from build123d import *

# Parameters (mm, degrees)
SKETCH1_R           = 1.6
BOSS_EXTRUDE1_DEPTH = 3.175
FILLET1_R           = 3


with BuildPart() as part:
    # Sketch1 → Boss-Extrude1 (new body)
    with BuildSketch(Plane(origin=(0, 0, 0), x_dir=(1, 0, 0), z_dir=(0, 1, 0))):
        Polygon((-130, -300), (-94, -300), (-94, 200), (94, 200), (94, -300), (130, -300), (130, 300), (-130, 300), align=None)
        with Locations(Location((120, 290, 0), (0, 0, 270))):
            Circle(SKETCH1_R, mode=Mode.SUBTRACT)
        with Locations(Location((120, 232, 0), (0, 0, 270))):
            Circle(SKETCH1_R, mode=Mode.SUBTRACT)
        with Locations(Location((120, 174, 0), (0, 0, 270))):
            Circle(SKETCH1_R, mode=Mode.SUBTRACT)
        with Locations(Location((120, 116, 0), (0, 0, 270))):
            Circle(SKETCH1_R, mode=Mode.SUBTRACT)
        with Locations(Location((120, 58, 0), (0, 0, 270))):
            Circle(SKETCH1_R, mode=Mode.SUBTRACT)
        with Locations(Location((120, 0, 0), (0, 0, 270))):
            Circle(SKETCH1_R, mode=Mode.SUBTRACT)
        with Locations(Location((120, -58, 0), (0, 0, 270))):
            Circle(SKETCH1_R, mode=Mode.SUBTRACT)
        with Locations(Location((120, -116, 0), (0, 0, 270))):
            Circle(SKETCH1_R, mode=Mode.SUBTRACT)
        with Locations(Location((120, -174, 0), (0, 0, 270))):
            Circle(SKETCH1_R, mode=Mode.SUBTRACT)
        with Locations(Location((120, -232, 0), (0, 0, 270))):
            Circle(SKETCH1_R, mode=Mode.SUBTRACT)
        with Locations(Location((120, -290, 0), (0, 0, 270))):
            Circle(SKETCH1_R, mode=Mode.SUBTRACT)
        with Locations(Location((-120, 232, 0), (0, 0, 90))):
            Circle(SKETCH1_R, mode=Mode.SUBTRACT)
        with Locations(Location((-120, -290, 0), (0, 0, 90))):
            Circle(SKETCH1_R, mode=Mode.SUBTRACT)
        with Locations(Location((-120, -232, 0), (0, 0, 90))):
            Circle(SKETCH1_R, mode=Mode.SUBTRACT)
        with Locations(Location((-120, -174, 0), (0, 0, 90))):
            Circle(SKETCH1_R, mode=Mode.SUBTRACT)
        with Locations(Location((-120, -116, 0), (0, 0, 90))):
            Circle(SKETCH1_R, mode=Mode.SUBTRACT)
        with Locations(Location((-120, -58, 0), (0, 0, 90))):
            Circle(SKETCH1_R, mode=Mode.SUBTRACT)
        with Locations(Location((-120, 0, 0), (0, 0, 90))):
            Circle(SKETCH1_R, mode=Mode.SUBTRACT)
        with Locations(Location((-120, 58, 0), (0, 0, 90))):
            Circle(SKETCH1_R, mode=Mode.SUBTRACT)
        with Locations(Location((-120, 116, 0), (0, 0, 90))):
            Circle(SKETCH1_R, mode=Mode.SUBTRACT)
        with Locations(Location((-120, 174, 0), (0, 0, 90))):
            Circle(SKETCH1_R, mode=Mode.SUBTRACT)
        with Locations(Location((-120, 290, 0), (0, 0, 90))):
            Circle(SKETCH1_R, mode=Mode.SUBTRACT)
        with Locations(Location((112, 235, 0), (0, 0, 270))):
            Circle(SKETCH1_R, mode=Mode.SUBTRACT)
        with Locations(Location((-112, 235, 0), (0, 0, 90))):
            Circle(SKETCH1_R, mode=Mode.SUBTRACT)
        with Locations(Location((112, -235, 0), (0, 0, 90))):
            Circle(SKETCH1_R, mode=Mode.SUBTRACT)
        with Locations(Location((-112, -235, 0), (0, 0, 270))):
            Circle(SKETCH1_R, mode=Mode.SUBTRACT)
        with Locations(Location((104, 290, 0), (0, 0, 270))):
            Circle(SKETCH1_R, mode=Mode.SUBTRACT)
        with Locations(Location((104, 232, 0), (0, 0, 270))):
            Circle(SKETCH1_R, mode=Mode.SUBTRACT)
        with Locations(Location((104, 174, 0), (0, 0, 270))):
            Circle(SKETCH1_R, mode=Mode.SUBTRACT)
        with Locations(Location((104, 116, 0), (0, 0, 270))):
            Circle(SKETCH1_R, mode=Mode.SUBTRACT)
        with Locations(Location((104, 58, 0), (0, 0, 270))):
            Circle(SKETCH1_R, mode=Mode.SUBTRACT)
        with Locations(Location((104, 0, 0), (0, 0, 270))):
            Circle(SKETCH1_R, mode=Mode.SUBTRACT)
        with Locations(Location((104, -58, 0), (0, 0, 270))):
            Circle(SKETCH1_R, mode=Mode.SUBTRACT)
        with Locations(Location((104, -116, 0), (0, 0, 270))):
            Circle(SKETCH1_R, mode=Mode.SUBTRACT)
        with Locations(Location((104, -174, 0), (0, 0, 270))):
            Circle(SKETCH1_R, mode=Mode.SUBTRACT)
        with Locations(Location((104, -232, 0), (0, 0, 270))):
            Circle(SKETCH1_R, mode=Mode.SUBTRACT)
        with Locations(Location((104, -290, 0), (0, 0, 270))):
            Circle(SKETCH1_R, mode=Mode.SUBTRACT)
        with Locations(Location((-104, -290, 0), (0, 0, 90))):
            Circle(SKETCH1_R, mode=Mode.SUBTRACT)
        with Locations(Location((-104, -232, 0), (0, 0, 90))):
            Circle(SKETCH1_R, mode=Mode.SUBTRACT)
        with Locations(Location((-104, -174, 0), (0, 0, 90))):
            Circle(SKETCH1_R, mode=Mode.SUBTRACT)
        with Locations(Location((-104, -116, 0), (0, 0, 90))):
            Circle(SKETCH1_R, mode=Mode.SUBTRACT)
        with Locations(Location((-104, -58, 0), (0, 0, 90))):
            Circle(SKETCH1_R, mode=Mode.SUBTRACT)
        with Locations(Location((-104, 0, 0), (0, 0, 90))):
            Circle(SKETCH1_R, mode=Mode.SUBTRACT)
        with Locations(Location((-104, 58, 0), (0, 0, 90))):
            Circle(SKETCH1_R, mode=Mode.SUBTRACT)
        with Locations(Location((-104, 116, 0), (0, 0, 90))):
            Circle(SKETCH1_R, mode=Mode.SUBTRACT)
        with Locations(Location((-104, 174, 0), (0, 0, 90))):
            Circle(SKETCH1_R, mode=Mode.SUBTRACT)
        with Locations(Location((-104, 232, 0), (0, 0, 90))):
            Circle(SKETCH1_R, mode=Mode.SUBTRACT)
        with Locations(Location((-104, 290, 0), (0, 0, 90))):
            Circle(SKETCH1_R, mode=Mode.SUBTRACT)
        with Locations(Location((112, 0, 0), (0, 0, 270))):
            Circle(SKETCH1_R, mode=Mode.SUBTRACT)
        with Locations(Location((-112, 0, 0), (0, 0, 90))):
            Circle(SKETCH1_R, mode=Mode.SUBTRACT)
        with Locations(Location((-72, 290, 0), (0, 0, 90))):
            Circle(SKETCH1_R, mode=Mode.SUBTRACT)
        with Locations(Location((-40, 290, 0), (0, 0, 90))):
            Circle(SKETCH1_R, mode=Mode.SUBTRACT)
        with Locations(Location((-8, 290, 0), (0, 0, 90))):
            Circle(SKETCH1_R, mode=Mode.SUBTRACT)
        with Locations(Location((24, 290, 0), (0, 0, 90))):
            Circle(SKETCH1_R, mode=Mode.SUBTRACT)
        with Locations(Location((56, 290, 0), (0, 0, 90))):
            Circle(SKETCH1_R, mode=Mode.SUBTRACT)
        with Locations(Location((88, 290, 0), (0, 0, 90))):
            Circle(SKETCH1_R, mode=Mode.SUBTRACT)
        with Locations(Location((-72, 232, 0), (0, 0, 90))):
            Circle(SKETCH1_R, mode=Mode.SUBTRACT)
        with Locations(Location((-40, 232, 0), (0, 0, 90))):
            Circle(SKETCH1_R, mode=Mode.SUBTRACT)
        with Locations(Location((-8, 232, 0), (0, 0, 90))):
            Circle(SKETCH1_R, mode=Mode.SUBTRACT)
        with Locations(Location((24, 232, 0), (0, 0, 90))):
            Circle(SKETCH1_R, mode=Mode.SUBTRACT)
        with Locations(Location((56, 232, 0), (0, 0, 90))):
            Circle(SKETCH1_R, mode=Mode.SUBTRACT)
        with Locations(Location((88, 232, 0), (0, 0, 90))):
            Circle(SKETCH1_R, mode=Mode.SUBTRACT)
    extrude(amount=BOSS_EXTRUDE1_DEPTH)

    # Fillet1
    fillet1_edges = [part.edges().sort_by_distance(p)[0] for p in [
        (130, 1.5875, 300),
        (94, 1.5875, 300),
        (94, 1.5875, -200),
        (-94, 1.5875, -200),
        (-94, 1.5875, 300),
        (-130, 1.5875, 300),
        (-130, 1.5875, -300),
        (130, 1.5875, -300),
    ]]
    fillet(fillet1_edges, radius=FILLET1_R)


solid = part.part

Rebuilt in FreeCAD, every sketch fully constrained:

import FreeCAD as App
import Part
import Sketcher
from FreeCAD import Vector
Q = App.Units.Quantity


def edges_at(feature, points):
    """Names of the edges that pass closest to the given points."""
    edges = feature.Shape.Edges
    near = lambda p: min(range(len(edges)), key=lambda i: edges[i].distToShape(Part.Vertex(*p))[0])
    return sorted({f"Edge{near(p) + 1}" for p in points})

doc = App.newDocument("Part")
body = doc.addObject("PartDesign::Body", "Body")

sketch1 = body.newObject("Sketcher::SketchObject", "Sketch")
sketch1.AttachmentSupport = (doc.getObject("XZ_Plane"), [""])
sketch1.MapMode = "FlatFace"
sketch1.addGeometry(Part.LineSegment(Vector(-130, 300, 0), Vector(-94, 300, 0)), False)
sketch1.addGeometry(Part.LineSegment(Vector(-94, 300, 0), Vector(-94, -200, 0)), False)
sketch1.addGeometry(Part.LineSegment(Vector(-94, -200, 0), Vector(94, -200, 0)), False)
sketch1.addGeometry(Part.LineSegment(Vector(94, -200, 0), Vector(94, 300, 0)), False)
sketch1.addGeometry(Part.LineSegment(Vector(94, 300, 0), Vector(130, 300, 0)), False)
sketch1.addGeometry(Part.LineSegment(Vector(130, 300, 0), Vector(130, -300, 0)), False)
sketch1.addGeometry(Part.LineSegment(Vector(130, -300, 0), Vector(-130, -300, 0)), False)
sketch1.addGeometry(Part.LineSegment(Vector(-130, -300, 0), Vector(-130, 300, 0)), False)
sketch1.addGeometry(Part.Circle(Vector(-120, 290, 0), Vector(0, 0, 1), 1.6), False)
sketch1.addGeometry(Part.Circle(Vector(-104, 290, 0), Vector(0, 0, 1), 1.6), False)
sketch1.addGeometry(Part.Circle(Vector(-120, 232, 0), Vector(0, 0, 1), 1.6), False)
sketch1.addGeometry(Part.Circle(Vector(-112, 235, 0), Vector(0, 0, 1), 1.6), False)
sketch1.addGeometry(Part.Circle(Vector(-104, 232, 0), Vector(0, 0, 1), 1.6), False)
sketch1.addGeometry(Part.Circle(Vector(-120, 174, 0), Vector(0, 0, 1), 1.6), False)
sketch1.addGeometry(Part.Circle(Vector(-104, 174, 0), Vector(0, 0, 1), 1.6), False)
sketch1.addGeometry(Part.Circle(Vector(-120, 116, 0), Vector(0, 0, 1), 1.6), False)
sketch1.addGeometry(Part.Circle(Vector(-104, 116, 0), Vector(0, 0, 1), 1.6), False)
sketch1.addGeometry(Part.Circle(Vector(-120, 58, 0), Vector(0, 0, 1), 1.6), False)
sketch1.addGeometry(Part.Circle(Vector(-104, 58, 0), Vector(0, 0, 1), 1.6), False)
sketch1.addGeometry(Part.Circle(Vector(104, 290, 0), Vector(0, 0, 1), 1.6), False)
sketch1.addGeometry(Part.Circle(Vector(120, 290, 0), Vector(0, 0, 1), 1.6), False)
sketch1.addGeometry(Part.Circle(Vector(104, 232, 0), Vector(0, 0, 1), 1.6), False)
sketch1.addGeometry(Part.Circle(Vector(112, 235, 0), Vector(0, 0, 1), 1.6), False)
sketch1.addGeometry(Part.Circle(Vector(120, 232, 0), Vector(0, 0, 1), 1.6), False)
sketch1.addGeometry(Part.Circle(Vector(104, 174, 0), Vector(0, 0, 1), 1.6), False)
sketch1.addGeometry(Part.Circle(Vector(120, 174, 0), Vector(0, 0, 1), 1.6), False)
sketch1.addGeometry(Part.Circle(Vector(104, 116, 0), Vector(0, 0, 1), 1.6), False)
sketch1.addGeometry(Part.Circle(Vector(120, 116, 0), Vector(0, 0, 1), 1.6), False)
sketch1.addGeometry(Part.Circle(Vector(104, 58, 0), Vector(0, 0, 1), 1.6), False)
sketch1.addGeometry(Part.Circle(Vector(120, 58, 0), Vector(0, 0, 1), 1.6), False)
sketch1.addGeometry(Part.Circle(Vector(-120, 0, 0), Vector(0, 0, 1), 1.6), False)
sketch1.addGeometry(Part.Circle(Vector(-112, 0, 0), Vector(0, 0, 1), 1.6), False)
sketch1.addGeometry(Part.Circle(Vector(-104, 0, 0), Vector(0, 0, 1), 1.6), False)
sketch1.addGeometry(Part.Circle(Vector(-120, -58, 0), Vector(0, 0, 1), 1.6), False)
sketch1.addGeometry(Part.Circle(Vector(-104, -58, 0), Vector(0, 0, 1), 1.6), False)
sketch1.addGeometry(Part.Circle(Vector(-120, -116, 0), Vector(0, 0, 1), 1.6), False)
sketch1.addGeometry(Part.Circle(Vector(-104, -116, 0), Vector(0, 0, 1), 1.6), False)
sketch1.addGeometry(Part.Circle(Vector(-120, -174, 0), Vector(0, 0, 1), 1.6), False)
sketch1.addGeometry(Part.Circle(Vector(-104, -174, 0), Vector(0, 0, 1), 1.6), False)
sketch1.addGeometry(Part.Circle(Vector(-120, -232, 0), Vector(0, 0, 1), 1.6), False)
sketch1.addGeometry(Part.Circle(Vector(-112, -235, 0), Vector(0, 0, 1), 1.6), False)
sketch1.addGeometry(Part.Circle(Vector(-104, -232, 0), Vector(0, 0, 1), 1.6), False)
sketch1.addGeometry(Part.Circle(Vector(-120, -290, 0), Vector(0, 0, 1), 1.6), False)
sketch1.addGeometry(Part.Circle(Vector(-104, -290, 0), Vector(0, 0, 1), 1.6), False)
sketch1.addGeometry(Part.Circle(Vector(-72, -232, 0), Vector(0, 0, 1), 1.6), False)
sketch1.addGeometry(Part.Circle(Vector(-72, -290, 0), Vector(0, 0, 1), 1.6), False)
sketch1.addGeometry(Part.Circle(Vector(-40, -232, 0), Vector(0, 0, 1), 1.6), False)
sketch1.addGeometry(Part.Circle(Vector(-40, -290, 0), Vector(0, 0, 1), 1.6), False)
sketch1.addGeometry(Part.Circle(Vector(-8, -232, 0), Vector(0, 0, 1), 1.6), False)
sketch1.addGeometry(Part.Circle(Vector(-8, -290, 0), Vector(0, 0, 1), 1.6), False)
sketch1.addGeometry(Part.Circle(Vector(104, 0, 0), Vector(0, 0, 1), 1.6), False)
sketch1.addGeometry(Part.Circle(Vector(112, 0, 0), Vector(0, 0, 1), 1.6), False)
sketch1.addGeometry(Part.Circle(Vector(120, 0, 0), Vector(0, 0, 1), 1.6), False)
sketch1.addGeometry(Part.Circle(Vector(104, -58, 0), Vector(0, 0, 1), 1.6), False)
sketch1.addGeometry(Part.Circle(Vector(120, -58, 0), Vector(0, 0, 1), 1.6), False)
sketch1.addGeometry(Part.Circle(Vector(104, -116, 0), Vector(0, 0, 1), 1.6), False)
sketch1.addGeometry(Part.Circle(Vector(120, -116, 0), Vector(0, 0, 1), 1.6), False)
sketch1.addGeometry(Part.Circle(Vector(24, -232, 0), Vector(0, 0, 1), 1.6), False)
sketch1.addGeometry(Part.Circle(Vector(24, -290, 0), Vector(0, 0, 1), 1.6), False)
sketch1.addGeometry(Part.Circle(Vector(56, -232, 0), Vector(0, 0, 1), 1.6), False)
sketch1.addGeometry(Part.Circle(Vector(56, -290, 0), Vector(0, 0, 1), 1.6), False)
sketch1.addGeometry(Part.Circle(Vector(104, -174, 0), Vector(0, 0, 1), 1.6), False)
sketch1.addGeometry(Part.Circle(Vector(120, -174, 0), Vector(0, 0, 1), 1.6), False)
sketch1.addGeometry(Part.Circle(Vector(88, -232, 0), Vector(0, 0, 1), 1.6), False)
sketch1.addGeometry(Part.Circle(Vector(88, -290, 0), Vector(0, 0, 1), 1.6), False)
sketch1.addGeometry(Part.Circle(Vector(104, -232, 0), Vector(0, 0, 1), 1.6), False)
sketch1.addGeometry(Part.Circle(Vector(112, -235, 0), Vector(0, 0, 1), 1.6), False)
sketch1.addGeometry(Part.Circle(Vector(120, -232, 0), Vector(0, 0, 1), 1.6), False)
sketch1.addGeometry(Part.Circle(Vector(104, -290, 0), Vector(0, 0, 1), 1.6), False)
sketch1.addGeometry(Part.Circle(Vector(120, -290, 0), Vector(0, 0, 1), 1.6), False)
sketch1.addConstraint(Sketcher.Constraint("Coincident", 0, 2, 1, 1))
sketch1.addConstraint(Sketcher.Constraint("Coincident", 1, 2, 2, 1))
sketch1.addConstraint(Sketcher.Constraint("Coincident", 2, 2, 3, 1))
sketch1.addConstraint(Sketcher.Constraint("Coincident", 3, 2, 4, 1))
sketch1.addConstraint(Sketcher.Constraint("Coincident", 4, 2, 5, 1))
sketch1.addConstraint(Sketcher.Constraint("Coincident", 5, 2, 6, 1))
sketch1.addConstraint(Sketcher.Constraint("Coincident", 6, 2, 7, 1))
sketch1.addConstraint(Sketcher.Constraint("Coincident", 7, 2, 0, 1))
sketch1.addConstraint(Sketcher.Constraint("Horizontal", 0))
sketch1.addConstraint(Sketcher.Constraint("Vertical", 1))
sketch1.addConstraint(Sketcher.Constraint("Horizontal", 2))
sketch1.addConstraint(Sketcher.Constraint("Vertical", 3))
sketch1.addConstraint(Sketcher.Constraint("Horizontal", 4))
sketch1.addConstraint(Sketcher.Constraint("Vertical", 5))
sketch1.addConstraint(Sketcher.Constraint("Horizontal", 6))
sketch1.addConstraint(Sketcher.Constraint("Vertical", 7))
sketch1.addConstraint(Sketcher.Constraint("Equal", 8, 9))
sketch1.addConstraint(Sketcher.Constraint("Equal", 9, 10))
sketch1.addConstraint(Sketcher.Constraint("Equal", 10, 11))
sketch1.addConstraint(Sketcher.Constraint("Equal", 11, 12))
sketch1.addConstraint(Sketcher.Constraint("Equal", 12, 13))
sketch1.addConstraint(Sketcher.Constraint("Equal", 13, 14))
sketch1.addConstraint(Sketcher.Constraint("Equal", 14, 15))
sketch1.addConstraint(Sketcher.Constraint("Equal", 15, 16))
sketch1.addConstraint(Sketcher.Constraint("Equal", 16, 17))
sketch1.addConstraint(Sketcher.Constraint("Equal", 17, 18))
sketch1.addConstraint(Sketcher.Constraint("Equal", 18, 19))
sketch1.addConstraint(Sketcher.Constraint("Equal", 19, 20))
sketch1.addConstraint(Sketcher.Constraint("Equal", 20, 21))
sketch1.addConstraint(Sketcher.Constraint("Equal", 21, 22))
sketch1.addConstraint(Sketcher.Constraint("Equal", 22, 23))
sketch1.addConstraint(Sketcher.Constraint("Equal", 23, 24))
sketch1.addConstraint(Sketcher.Constraint("Equal", 24, 25))
sketch1.addConstraint(Sketcher.Constraint("Equal", 25, 26))
sketch1.addConstraint(Sketcher.Constraint("Equal", 26, 27))
sketch1.addConstraint(Sketcher.Constraint("Equal", 27, 28))
sketch1.addConstraint(Sketcher.Constraint("Equal", 28, 29))
sketch1.addConstraint(Sketcher.Constraint("Equal", 29, 30))
sketch1.addConstraint(Sketcher.Constraint("Equal", 30, 31))
sketch1.addConstraint(Sketcher.Constraint("Equal", 31, 32))
sketch1.addConstraint(Sketcher.Constraint("Equal", 32, 33))
sketch1.addConstraint(Sketcher.Constraint("Equal", 33, 34))
sketch1.addConstraint(Sketcher.Constraint("Equal", 34, 35))
sketch1.addConstraint(Sketcher.Constraint("Equal", 35, 36))
sketch1.addConstraint(Sketcher.Constraint("Equal", 36, 37))
sketch1.addConstraint(Sketcher.Constraint("Equal", 37, 38))
sketch1.addConstraint(Sketcher.Constraint("Equal", 38, 39))
sketch1.addConstraint(Sketcher.Constraint("Equal", 39, 40))
sketch1.addConstraint(Sketcher.Constraint("Equal", 40, 41))
sketch1.addConstraint(Sketcher.Constraint("Equal", 41, 42))
sketch1.addConstraint(Sketcher.Constraint("Equal", 42, 43))
sketch1.addConstraint(Sketcher.Constraint("Equal", 43, 44))
sketch1.addConstraint(Sketcher.Constraint("Equal", 44, 45))
sketch1.addConstraint(Sketcher.Constraint("Equal", 45, 46))
sketch1.addConstraint(Sketcher.Constraint("Equal", 46, 47))
sketch1.addConstraint(Sketcher.Constraint("Equal", 47, 48))
sketch1.addConstraint(Sketcher.Constraint("Equal", 48, 49))
sketch1.addConstraint(Sketcher.Constraint("Equal", 49, 50))
sketch1.addConstraint(Sketcher.Constraint("Equal", 50, 51))
sketch1.addConstraint(Sketcher.Constraint("Equal", 51, 52))
sketch1.addConstraint(Sketcher.Constraint("Equal", 52, 53))
sketch1.addConstraint(Sketcher.Constraint("Equal", 53, 54))
sketch1.addConstraint(Sketcher.Constraint("Equal", 54, 55))
sketch1.addConstraint(Sketcher.Constraint("Equal", 55, 56))
sketch1.addConstraint(Sketcher.Constraint("Equal", 56, 57))
sketch1.addConstraint(Sketcher.Constraint("Equal", 57, 58))
sketch1.addConstraint(Sketcher.Constraint("Equal", 58, 59))
sketch1.addConstraint(Sketcher.Constraint("Equal", 59, 60))
sketch1.addConstraint(Sketcher.Constraint("Equal", 60, 61))
sketch1.addConstraint(Sketcher.Constraint("Equal", 61, 62))
sketch1.addConstraint(Sketcher.Constraint("Equal", 62, 63))
sketch1.addConstraint(Sketcher.Constraint("Equal", 63, 64))
sketch1.addConstraint(Sketcher.Constraint("Equal", 64, 65))
sketch1.addConstraint(Sketcher.Constraint("Equal", 65, 66))
sketch1.addConstraint(Sketcher.Constraint("Equal", 66, 67))
sketch1.addConstraint(Sketcher.Constraint("Equal", 67, 68))
sketch1.addConstraint(Sketcher.Constraint("Equal", 68, 69))
sketch1.addConstraint(Sketcher.Constraint("Symmetric", 29, 3, 33, 3, -1, 1))
sketch1.addConstraint(Sketcher.Constraint("Symmetric", 28, 3, 34, 3, -1, 1))
sketch1.addConstraint(Sketcher.Constraint("Symmetric", 27, 3, 35, 3, -1, 1))
sketch1.addConstraint(Sketcher.Constraint("Symmetric", 26, 3, 36, 3, -1, 1))
sketch1.addConstraint(Sketcher.Constraint("Symmetric", 25, 3, 37, 3, -1, 1))
sketch1.addConstraint(Sketcher.Constraint("Symmetric", 24, 3, 38, 3, -1, 1))
sketch1.addConstraint(Sketcher.Constraint("Symmetric", 23, 3, 39, 3, -1, 1))
sketch1.addConstraint(Sketcher.Constraint("Symmetric", 22, 3, 40, 3, -1, 1))
sketch1.addConstraint(Sketcher.Constraint("Symmetric", 21, 3, 41, 3, -1, 1))
sketch1.addConstraint(Sketcher.Constraint("Symmetric", 20, 3, 42, 3, -1, 1))
sketch1.addConstraint(Sketcher.Constraint("Symmetric", 19, 3, 43, 3, -1, 1))
sketch1.addConstraint(Sketcher.Constraint("Symmetric", 32, 3, 50, 3, -1, 1))
sketch1.addConstraint(Sketcher.Constraint("Symmetric", 31, 3, 51, 3, -1, 1))
sketch1.addConstraint(Sketcher.Constraint("Symmetric", 30, 3, 52, 3, -1, 1))
sketch1.addConstraint(Sketcher.Constraint("Symmetric", 18, 3, 53, 3, -1, 1))
sketch1.addConstraint(Sketcher.Constraint("Symmetric", 17, 3, 54, 3, -1, 1))
sketch1.addConstraint(Sketcher.Constraint("Symmetric", 16, 3, 55, 3, -1, 1))
sketch1.addConstraint(Sketcher.Constraint("Symmetric", 15, 3, 56, 3, -1, 1))
sketch1.addConstraint(Sketcher.Constraint("Symmetric", 14, 3, 61, 3, -1, 1))
sketch1.addConstraint(Sketcher.Constraint("Symmetric", 13, 3, 62, 3, -1, 1))
sketch1.addConstraint(Sketcher.Constraint("Symmetric", 12, 3, 65, 3, -1, 1))
sketch1.addConstraint(Sketcher.Constraint("Symmetric", 11, 3, 66, 3, -1, 1))
sketch1.addConstraint(Sketcher.Constraint("Symmetric", 10, 3, 67, 3, -1, 1))
sketch1.addConstraint(Sketcher.Constraint("Symmetric", 9, 3, 68, 3, -1, 1))
sketch1.addConstraint(Sketcher.Constraint("Symmetric", 8, 3, 69, 3, -1, 1))
sketch1.addConstraint(Sketcher.Constraint("Symmetric", 4, 2, 6, 2, -1, 1))
sketch1.addConstraint(Sketcher.Constraint("Symmetric", 9, 3, 19, 3, -2))
sketch1.addConstraint(Sketcher.Constraint("Symmetric", 8, 3, 20, 3, -2))
sketch1.addConstraint(Sketcher.Constraint("Symmetric", 12, 3, 21, 3, -2))
sketch1.addConstraint(Sketcher.Constraint("Symmetric", 11, 3, 22, 3, -2))
sketch1.addConstraint(Sketcher.Constraint("Symmetric", 10, 3, 23, 3, -2))
sketch1.addConstraint(Sketcher.Constraint("Symmetric", 14, 3, 24, 3, -2))
sketch1.addConstraint(Sketcher.Constraint("Symmetric", 13, 3, 25, 3, -2))
sketch1.addConstraint(Sketcher.Constraint("Symmetric", 16, 3, 26, 3, -2))
sketch1.addConstraint(Sketcher.Constraint("Symmetric", 15, 3, 27, 3, -2))
sketch1.addConstraint(Sketcher.Constraint("Symmetric", 18, 3, 28, 3, -2))
sketch1.addConstraint(Sketcher.Constraint("Symmetric", 17, 3, 29, 3, -2))
sketch1.addConstraint(Sketcher.Constraint("Symmetric", 0, 2, 3, 2, -2))
sketch1.addConstraint(Sketcher.Constraint("PointOnObject", 30, 3, -1))
sketch1.addConstraint(Sketcher.Constraint("PointOnObject", 31, 3, -1))
sketch1.addConstraint(Sketcher.Constraint("PointOnObject", 32, 3, -1))
sketch1.addConstraint(Sketcher.Constraint("Horizontal", 8, 3, 9, 3))
sketch1.addConstraint(Sketcher.Constraint("Horizontal", 10, 3, 12, 3))
sketch1.addConstraint(Sketcher.Constraint("Horizontal", 13, 3, 14, 3))
sketch1.addConstraint(Sketcher.Constraint("Horizontal", 15, 3, 16, 3))
sketch1.addConstraint(Sketcher.Constraint("Horizontal", 17, 3, 18, 3))
sketch1.addConstraint(Sketcher.Constraint("Horizontal", 41, 3, 44, 3))
sketch1.addConstraint(Sketcher.Constraint("Horizontal", 43, 3, 45, 3))
sketch1.addConstraint(Sketcher.Constraint("Horizontal", 44, 3, 46, 3))
sketch1.addConstraint(Sketcher.Constraint("Horizontal", 45, 3, 47, 3))
sketch1.addConstraint(Sketcher.Constraint("Horizontal", 46, 3, 48, 3))
sketch1.addConstraint(Sketcher.Constraint("Horizontal", 47, 3, 49, 3))
sketch1.addConstraint(Sketcher.Constraint("Horizontal", 48, 3, 57, 3))
sketch1.addConstraint(Sketcher.Constraint("Horizontal", 49, 3, 58, 3))
sketch1.addConstraint(Sketcher.Constraint("Horizontal", 57, 3, 59, 3))
sketch1.addConstraint(Sketcher.Constraint("Horizontal", 58, 3, 60, 3))
sketch1.addConstraint(Sketcher.Constraint("Horizontal", 59, 3, 63, 3))
sketch1.addConstraint(Sketcher.Constraint("Horizontal", 60, 3, 64, 3))
sketch1.addConstraint(Sketcher.Constraint("Vertical", 8, 3, 10, 3))
sketch1.addConstraint(Sketcher.Constraint("Vertical", 9, 3, 12, 3))
sketch1.addConstraint(Sketcher.Constraint("Vertical", 10, 3, 13, 3))
sketch1.addConstraint(Sketcher.Constraint("Vertical", 12, 3, 14, 3))
sketch1.addConstraint(Sketcher.Constraint("Vertical", 13, 3, 15, 3))
sketch1.addConstraint(Sketcher.Constraint("Vertical", 14, 3, 16, 3))
sketch1.addConstraint(Sketcher.Constraint("Vertical", 15, 3, 17, 3))
sketch1.addConstraint(Sketcher.Constraint("Vertical", 16, 3, 18, 3))
sketch1.addConstraint(Sketcher.Constraint("Vertical", 17, 3, 30, 3))
sketch1.addConstraint(Sketcher.Constraint("Vertical", 11, 3, 31, 3))
sketch1.addConstraint(Sketcher.Constraint("Vertical", 18, 3, 32, 3))
sketch1.addConstraint(Sketcher.Constraint("Vertical", 44, 3, 45, 3))
sketch1.addConstraint(Sketcher.Constraint("Vertical", 46, 3, 47, 3))
sketch1.addConstraint(Sketcher.Constraint("Vertical", 48, 3, 49, 3))
sketch1.addConstraint(Sketcher.Constraint("Vertical", 57, 3, 58, 3))
sketch1.addConstraint(Sketcher.Constraint("Vertical", 59, 3, 60, 3))
sketch1.addConstraint(Sketcher.Constraint("Vertical", 63, 3, 64, 3))
sketch1.addConstraint(Sketcher.Constraint("Diameter", 8, Q("3.2 mm")))
sketch1.addConstraint(Sketcher.Constraint("DistanceX", 0, 1, 0, 2, Q("36 mm")))
sketch1.addConstraint(Sketcher.Constraint("DistanceX", 2, 1, 2, 2, Q("188 mm")))
sketch1.addConstraint(Sketcher.Constraint("DistanceY", 1, 2, 1, 1, Q("500 mm")))
sketch1.addConstraint(Sketcher.Constraint("DistanceY", 5, 2, 5, 1, Q("600 mm")))
sketch1.addConstraint(Sketcher.Constraint("DistanceX", 8, 3, -1, 1, Q("120 mm")))
sketch1.addConstraint(Sketcher.Constraint("DistanceY", -1, 1, 8, 3, Q("290 mm")))
sketch1.addConstraint(Sketcher.Constraint("DistanceX", 9, 3, -1, 1, Q("104 mm")))
sketch1.addConstraint(Sketcher.Constraint("DistanceY", -1, 1, 10, 3, Q("232 mm")))
sketch1.addConstraint(Sketcher.Constraint("DistanceX", 11, 3, -1, 1, Q("112 mm")))
sketch1.addConstraint(Sketcher.Constraint("DistanceY", -1, 1, 11, 3, Q("235 mm")))
sketch1.addConstraint(Sketcher.Constraint("DistanceY", -1, 1, 13, 3, Q("174 mm")))
sketch1.addConstraint(Sketcher.Constraint("DistanceY", -1, 1, 15, 3, Q("116 mm")))
sketch1.addConstraint(Sketcher.Constraint("DistanceY", -1, 1, 17, 3, Q("58 mm")))
sketch1.addConstraint(Sketcher.Constraint("DistanceX", 44, 3, -1, 1, Q("72 mm")))
sketch1.addConstraint(Sketcher.Constraint("DistanceX", 46, 3, -1, 1, Q("40 mm")))
sketch1.addConstraint(Sketcher.Constraint("DistanceX", 48, 3, -1, 1, Q("8 mm")))
sketch1.addConstraint(Sketcher.Constraint("DistanceX", -1, 1, 57, 3, Q("24 mm")))
sketch1.addConstraint(Sketcher.Constraint("DistanceX", -1, 1, 59, 3, Q("56 mm")))
sketch1.addConstraint(Sketcher.Constraint("DistanceX", -1, 1, 63, 3, Q("88 mm")))
pad1 = body.newObject("PartDesign::Pad", "Pad")
pad1.Profile = sketch1
pad1.Length = 3.175
pad1.Reversed = True
doc.recompute()

fillet = body.newObject("PartDesign::Fillet", "Fillet")
fillet.Base = (pad1, edges_at(pad1, [
    (130, 1.587, 300),
    (94, 1.587, 300),
    (94, 1.587, -200),
    (-94, 1.587, -200),
    (-94, 1.587, 300),
    (-130, 1.587, 300),
    (-130, 1.587, -300),
    (130, 1.587, -300),
]))
fillet.Radius = 3

doc.recompute()
